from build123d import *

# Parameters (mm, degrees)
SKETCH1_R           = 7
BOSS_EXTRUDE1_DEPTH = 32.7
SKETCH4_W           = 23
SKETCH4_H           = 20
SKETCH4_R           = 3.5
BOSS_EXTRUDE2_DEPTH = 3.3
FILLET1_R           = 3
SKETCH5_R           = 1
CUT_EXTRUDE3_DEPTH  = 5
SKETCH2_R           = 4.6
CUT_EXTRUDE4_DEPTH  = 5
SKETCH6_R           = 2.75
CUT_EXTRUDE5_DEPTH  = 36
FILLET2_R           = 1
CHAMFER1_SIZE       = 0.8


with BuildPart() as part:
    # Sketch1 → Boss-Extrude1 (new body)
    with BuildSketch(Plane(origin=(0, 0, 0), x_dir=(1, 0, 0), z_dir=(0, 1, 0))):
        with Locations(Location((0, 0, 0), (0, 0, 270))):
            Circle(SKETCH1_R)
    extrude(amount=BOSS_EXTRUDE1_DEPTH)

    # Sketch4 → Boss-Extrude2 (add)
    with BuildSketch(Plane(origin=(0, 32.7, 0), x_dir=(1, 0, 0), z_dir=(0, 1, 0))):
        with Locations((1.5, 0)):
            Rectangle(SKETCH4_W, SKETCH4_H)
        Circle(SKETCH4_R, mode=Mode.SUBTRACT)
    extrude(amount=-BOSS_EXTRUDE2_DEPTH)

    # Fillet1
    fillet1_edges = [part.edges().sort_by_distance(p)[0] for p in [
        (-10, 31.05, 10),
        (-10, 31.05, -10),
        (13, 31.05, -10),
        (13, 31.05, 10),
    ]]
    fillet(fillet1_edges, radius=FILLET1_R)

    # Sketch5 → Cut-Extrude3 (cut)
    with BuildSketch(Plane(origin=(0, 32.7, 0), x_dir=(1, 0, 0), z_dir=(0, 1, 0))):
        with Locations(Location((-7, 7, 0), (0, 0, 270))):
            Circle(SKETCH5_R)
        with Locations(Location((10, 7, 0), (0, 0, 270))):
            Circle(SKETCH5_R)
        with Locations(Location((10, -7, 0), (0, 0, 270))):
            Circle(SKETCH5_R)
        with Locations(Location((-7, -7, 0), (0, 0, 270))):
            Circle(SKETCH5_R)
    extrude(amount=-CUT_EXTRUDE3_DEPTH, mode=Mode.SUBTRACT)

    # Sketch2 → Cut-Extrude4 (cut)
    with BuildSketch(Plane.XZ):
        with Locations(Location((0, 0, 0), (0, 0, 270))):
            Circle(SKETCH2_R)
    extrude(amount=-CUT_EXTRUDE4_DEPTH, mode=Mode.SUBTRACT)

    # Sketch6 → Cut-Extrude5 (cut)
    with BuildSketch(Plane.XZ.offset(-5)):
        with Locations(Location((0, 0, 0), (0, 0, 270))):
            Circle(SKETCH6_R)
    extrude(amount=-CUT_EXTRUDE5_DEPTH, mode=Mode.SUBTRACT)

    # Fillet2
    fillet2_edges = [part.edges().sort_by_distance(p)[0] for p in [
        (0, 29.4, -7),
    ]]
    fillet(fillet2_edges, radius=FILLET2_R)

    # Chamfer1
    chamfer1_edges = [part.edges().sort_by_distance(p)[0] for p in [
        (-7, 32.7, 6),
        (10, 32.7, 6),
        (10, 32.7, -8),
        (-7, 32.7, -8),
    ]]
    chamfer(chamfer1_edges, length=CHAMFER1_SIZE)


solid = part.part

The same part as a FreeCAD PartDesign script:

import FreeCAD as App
import Part
import Sketcher


def edges_at(feature, points):
    """Names of the edges that pass closest to the given points."""
    edges = feature.Shape.Edges
    near = lambda p: min(range(len(edges)), key=lambda i: edges[i].distToShape(Part.Vertex(*p))[0])
    return sorted({f"Edge{near(p) + 1}" for p in points})

doc = App.newDocument("Part")
body = doc.addObject("PartDesign::Body", "Body")

sketch1 = body.newObject("Sketcher::SketchObject", "Sketch")
sketch1.AttachmentSupport = (doc.getObject("XZ_Plane"), [""])
sketch1.MapMode = "FlatFace"
sketch1.addGeometry(Part.Circle(App.Vector(0, 0, 0), App.Vector(0, 0, 1), 7), False)
sketch1.addConstraint([
    Sketcher.Constraint("Coincident", 0, 3, -1, 1),
    Sketcher.Constraint("Diameter", 0, 14.0),
])
pad1 = body.newObject("PartDesign::Pad", "Pad")
pad1.Profile = sketch1
pad1.Length = 32.7
pad1.Reversed = True

sketch2 = body.newObject("Sketcher::SketchObject", "Sketch001")
sketch2.AttachmentSupport = (doc.getObject("XZ_Plane"), [""])
sketch2.MapMode = "FlatFace"
sketch2.AttachmentOffset = App.Placement(App.Vector(0, 0, -32.7), App.Rotation())
sketch2.addGeometry([
    Part.LineSegment(App.Vector(-10, -10, 0), App.Vector(-10, 10, 0)),
    Part.LineSegment(App.Vector(-10, 10, 0), App.Vector(13, 10, 0)),
    Part.LineSegment(App.Vector(13, 10, 0), App.Vector(13, -10, 0)),
    Part.LineSegment(App.Vector(13, -10, 0), App.Vector(-10, -10, 0)),
    Part.Circle(App.Vector(0, 0, 0), App.Vector(0, 0, 1), 3.5),
], False)
sketch2.addConstraint([
    Sketcher.Constraint("Coincident", 0, 2, 1, 1),
    Sketcher.Constraint("Coincident", 1, 2, 2, 1),
    Sketcher.Constraint("Coincident", 2, 2, 3, 1),
    Sketcher.Constraint("Coincident", 3, 2, 0, 1),
    Sketcher.Constraint("Vertical", 0),
    Sketcher.Constraint("Horizontal", 1),
    Sketcher.Constraint("Vertical", 2),
    Sketcher.Constraint("Horizontal", 3),
    Sketcher.Constraint("Coincident", 4, 3, -1, 1),
    Sketcher.Constraint("Diameter", 4, 7.0),
    Sketcher.Constraint("DistanceX", 1, 1, 1, 2, 23.0),
    Sketcher.Constraint("DistanceY", 0, 1, 0, 2, 20.0),
    Sketcher.Constraint("DistanceX", 0, 2, -1, 1, 10.0),
    Sketcher.Constraint("DistanceY", -1, 1, 0, 2, 10.0),
])
pad2 = body.newObject("PartDesign::Pad", "Pad001")
pad2.Profile = sketch2
pad2.Length = 3.3
doc.recompute()

fillet = body.newObject("PartDesign::Fillet", "Fillet")
fillet.Base = (pad2, edges_at(pad2, [
    (-10, 31.05, 10),
    (-10, 31.05, -10),
    (13, 31.05, -10),
    (13, 31.05, 10),
]))
fillet.Radius = 3

sketch3 = body.newObject("Sketcher::SketchObject", "Sketch002")
sketch3.AttachmentSupport = (doc.getObject("XZ_Plane"), [""])
sketch3.MapMode = "FlatFace"
sketch3.AttachmentOffset = App.Placement(App.Vector(0, 0, -32.7), App.Rotation())
sketch3.addGeometry([
    Part.Circle(App.Vector(-7, -7, 0), App.Vector(0, 0, 1), 1),
    Part.Circle(App.Vector(10, -7, 0), App.Vector(0, 0, 1), 1),
    Part.Circle(App.Vector(10, 7, 0), App.Vector(0, 0, 1), 1),
    Part.Circle(App.Vector(-7, 7, 0), App.Vector(0, 0, 1), 1),
], False)
sketch3.addConstraint([
    Sketcher.Constraint("Equal", 0, 1),
    Sketcher.Constraint("Equal", 1, 2),
    Sketcher.Constraint("Equal", 2, 3),
    Sketcher.Constraint("Symmetric", 1, 3, 2, 3, -1),
    Sketcher.Constraint("Symmetric", 0, 3, 3, 3, -1),
    Sketcher.Constraint("Horizontal", 0, 3, 1, 3),
    Sketcher.Constraint("Diameter", 0, 2.0),
    Sketcher.Constraint("DistanceX", 0, 3, -1, 1, 7.0),
    Sketcher.Constraint("DistanceY", 0, 3, -1, 1, 7.0),
    Sketcher.Constraint("DistanceX", -1, 1, 1, 3, 10.0),
])
pocket1 = body.newObject("PartDesign::Pocket", "Pocket")
pocket1.Profile = sketch3
pocket1.Length = 5
pocket1.Reversed = True

sketch4 = body.newObject("Sketcher::SketchObject", "Sketch003")
sketch4.AttachmentSupport = (doc.getObject("XZ_Plane"), [""])
sketch4.MapMode = "FlatFace"
sketch4.addGeometry(Part.Circle(App.Vector(0, 0, 0), App.Vector(0, 0, 1), 4.6), False)
sketch4.addConstraint([
    Sketcher.Constraint("Coincident", 0, 3, -1, 1),
    Sketcher.Constraint("Diameter", 0, 9.2),
])
pocket2 = body.newObject("PartDesign::Pocket", "Pocket001")
pocket2.Profile = sketch4
pocket2.Length = 5

sketch5 = body.newObject("Sketcher::SketchObject", "Sketch004")
sketch5.AttachmentSupport = (doc.getObject("XZ_Plane"), [""])
sketch5.MapMode = "FlatFace"
sketch5.AttachmentOffset = App.Placement(App.Vector(0, 0, -5), App.Rotation())
sketch5.addGeometry(Part.Circle(App.Vector(0, 0, 0), App.Vector(0, 0, 1), 2.8), False)
sketch5.addConstraint([
    Sketcher.Constraint("Coincident", 0, 3, -1, 1),
    Sketcher.Constraint("Diameter", 0, 5.5),
])
pocket3 = body.newObject("PartDesign::Pocket", "Pocket002")
pocket3.Profile = sketch5
pocket3.Length = 36
doc.recompute()

fillet2 = body.newObject("PartDesign::Fillet", "Fillet001")
fillet2.Base = (pocket3, edges_at(pocket3, [(0, 29.4, -7)]))
fillet2.Radius = 1
doc.recompute()

chamfer = body.newObject("PartDesign::Chamfer", "Chamfer")
chamfer.Base = (fillet2, edges_at(fillet2, [
    (-7, 32.7, 6),
    (10, 32.7, 6),
    (10, 32.7, -8),
    (-7, 32.7, -8),
]))
chamfer.Size = 0.8

doc.recompute()
